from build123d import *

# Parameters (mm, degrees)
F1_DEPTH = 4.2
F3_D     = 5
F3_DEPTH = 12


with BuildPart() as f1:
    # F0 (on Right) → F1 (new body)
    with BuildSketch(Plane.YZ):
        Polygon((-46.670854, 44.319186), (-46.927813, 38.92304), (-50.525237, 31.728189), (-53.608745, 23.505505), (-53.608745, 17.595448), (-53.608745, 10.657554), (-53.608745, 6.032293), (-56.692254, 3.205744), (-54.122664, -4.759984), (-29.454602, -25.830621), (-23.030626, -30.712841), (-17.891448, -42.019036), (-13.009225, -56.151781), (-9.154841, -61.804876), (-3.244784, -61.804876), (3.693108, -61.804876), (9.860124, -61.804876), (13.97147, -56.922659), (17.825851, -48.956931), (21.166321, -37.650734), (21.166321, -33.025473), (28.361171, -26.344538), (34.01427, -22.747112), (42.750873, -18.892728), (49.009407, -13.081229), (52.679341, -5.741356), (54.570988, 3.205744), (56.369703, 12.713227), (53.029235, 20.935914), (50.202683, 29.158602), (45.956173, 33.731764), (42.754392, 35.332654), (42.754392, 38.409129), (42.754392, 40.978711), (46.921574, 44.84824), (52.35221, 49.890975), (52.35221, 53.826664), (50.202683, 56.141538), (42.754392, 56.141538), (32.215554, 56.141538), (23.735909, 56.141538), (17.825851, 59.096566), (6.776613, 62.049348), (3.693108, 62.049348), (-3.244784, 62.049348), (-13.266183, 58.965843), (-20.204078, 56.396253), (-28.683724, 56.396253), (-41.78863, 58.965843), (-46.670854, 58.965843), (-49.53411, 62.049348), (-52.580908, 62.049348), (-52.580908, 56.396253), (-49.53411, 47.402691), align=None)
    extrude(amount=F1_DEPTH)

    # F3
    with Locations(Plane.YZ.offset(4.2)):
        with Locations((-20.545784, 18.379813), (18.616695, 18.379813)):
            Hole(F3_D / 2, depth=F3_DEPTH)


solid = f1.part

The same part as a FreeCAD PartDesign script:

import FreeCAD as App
import Part
import Sketcher

doc = App.newDocument("Part")
params = doc.addObject("Spreadsheet::Sheet", "Params")
for row, (alias, value) in enumerate([
    ("pad1_length", "4.2 mm"),
    ("sketch2_diameter", "5 mm"),
    ("hole_diameter", "5 mm"),
    ("hole_depth", "12 mm"),
], start=1):
    params.set(f"A{row}", alias)
    params.set(f"B{row}", "=" + value)
    params.setAlias(f"B{row}", alias)

body = doc.addObject("PartDesign::Body", "Body")

# Sketch on YZ plane
sketch1 = doc.addObject("Sketcher::SketchObject", "Sketch")
body.addObject(sketch1)
sketch1.AttachmentSupport = (doc.YZ_Plane, [""])
sketch1.MapMode = "FlatFace"
sketch1.addGeometry([
    Part.LineSegment(App.Vector(-46.670854, 44.319186, 0), App.Vector(-46.927813, 38.92304, 0)),  # 0
    Part.LineSegment(App.Vector(-46.927813, 38.92304, 0), App.Vector(-50.525237, 31.728189, 0)),  # 1
    Part.LineSegment(App.Vector(-50.525237, 31.728189, 0), App.Vector(-53.608745, 23.505505, 0)),  # 2
    Part.LineSegment(App.Vector(-53.608745, 23.505505, 0), App.Vector(-53.608745, 6.032293, 0)),  # 3
    Part.LineSegment(App.Vector(-53.608745, 6.032293, 0), App.Vector(-56.692254, 3.205744, 0)),  # 4
    Part.LineSegment(App.Vector(-56.692254, 3.205744, 0), App.Vector(-54.122664, -4.759984, 0)),  # 5
    Part.LineSegment(App.Vector(-54.122664, -4.759984, 0), App.Vector(-29.454602, -25.830621, 0)),  # 6
    Part.LineSegment(App.Vector(-29.454602, -25.830621, 0), App.Vector(-23.030626, -30.712841, 0)),  # 7
    Part.LineSegment(App.Vector(-23.030626, -30.712841, 0), App.Vector(-17.891448, -42.019036, 0)),  # 8
    Part.LineSegment(App.Vector(-17.891448, -42.019036, 0), App.Vector(-13.009225, -56.151781, 0)),  # 9
    Part.LineSegment(App.Vector(-13.009225, -56.151781, 0), App.Vector(-9.154841, -61.804876, 0)),  # 10
    Part.LineSegment(App.Vector(-9.154841, -61.804876, 0), App.Vector(9.860124, -61.804876, 0)),  # 11
    Part.LineSegment(App.Vector(9.860124, -61.804876, 0), App.Vector(13.97147, -56.922659, 0)),  # 12
    Part.LineSegment(App.Vector(13.97147, -56.922659, 0), App.Vector(17.825851, -48.956931, 0)),  # 13
    Part.LineSegment(App.Vector(17.825851, -48.956931, 0), App.Vector(21.166321, -37.650734, 0)),  # 14
    Part.LineSegment(App.Vector(21.166321, -37.650734, 0), App.Vector(21.166321, -33.025473, 0)),  # 15
    Part.LineSegment(App.Vector(21.166321, -33.025473, 0), App.Vector(28.361171, -26.344538, 0)),  # 16
    Part.LineSegment(App.Vector(28.361171, -26.344538, 0), App.Vector(34.01427, -22.747112, 0)),  # 17
    Part.LineSegment(App.Vector(34.01427, -22.747112, 0), App.Vector(42.750873, -18.892728, 0)),  # 18
    Part.LineSegment(App.Vector(42.750873, -18.892728, 0), App.Vector(49.009407, -13.081229, 0)),  # 19
    Part.LineSegment(App.Vector(49.009407, -13.081229, 0), App.Vector(52.679341, -5.741356, 0)),  # 20
    Part.LineSegment(App.Vector(52.679341, -5.741356, 0), App.Vector(54.570988, 3.205744, 0)),  # 21
    Part.LineSegment(App.Vector(54.570988, 3.205744, 0), App.Vector(56.369703, 12.713227, 0)),  # 22
    Part.LineSegment(App.Vector(56.369703, 12.713227, 0), App.Vector(53.029235, 20.935914, 0)),  # 23
    Part.LineSegment(App.Vector(53.029235, 20.935914, 0), App.Vector(50.202683, 29.158602, 0)),  # 24
    Part.LineSegment(App.Vector(50.202683, 29.158602, 0), App.Vector(45.956173, 33.731764, 0)),  # 25
    Part.LineSegment(App.Vector(45.956173, 33.731764, 0), App.Vector(42.754392, 35.332654, 0)),  # 26
    Part.LineSegment(App.Vector(42.754392, 35.332654, 0), App.Vector(42.754392, 40.978711, 0)),  # 27
    Part.LineSegment(App.Vector(42.754392, 40.978711, 0), App.Vector(46.921574, 44.84824, 0)),  # 28
    Part.LineSegment(App.Vector(46.921574, 44.84824, 0), App.Vector(52.35221, 49.890975, 0)),  # 29
    Part.LineSegment(App.Vector(52.35221, 49.890975, 0), App.Vector(52.35221, 53.826664, 0)),  # 30
    Part.LineSegment(App.Vector(52.35221, 53.826664, 0), App.Vector(50.202683, 56.141538, 0)),  # 31
    Part.LineSegment(App.Vector(50.202683, 56.141538, 0), App.Vector(23.735909, 56.141538, 0)),  # 32
    Part.LineSegment(App.Vector(23.735909, 56.141538, 0), App.Vector(17.825851, 59.096566, 0)),  # 33
    Part.LineSegment(App.Vector(17.825851, 59.096566, 0), App.Vector(6.776613, 62.049348, 0)),  # 34
    Part.LineSegment(App.Vector(6.776613, 62.049348, 0), App.Vector(-3.244784, 62.049348, 0)),  # 35
    Part.LineSegment(App.Vector(-3.244784, 62.049348, 0), App.Vector(-13.266183, 58.965843, 0)),  # 36
    Part.LineSegment(App.Vector(-13.266183, 58.965843, 0), App.Vector(-20.204078, 56.396253, 0)),  # 37
    Part.LineSegment(App.Vector(-20.204078, 56.396253, 0), App.Vector(-28.683724, 56.396253, 0)),  # 38
    Part.LineSegment(App.Vector(-28.683724, 56.396253, 0), App.Vector(-41.78863, 58.965843, 0)),  # 39
    Part.LineSegment(App.Vector(-41.78863, 58.965843, 0), App.Vector(-46.670854, 58.965843, 0)),  # 40
    Part.LineSegment(App.Vector(-46.670854, 58.965843, 0), App.Vector(-49.53411, 62.049348, 0)),  # 41
    Part.LineSegment(App.Vector(-49.53411, 62.049348, 0), App.Vector(-52.580908, 62.049348, 0)),  # 42
    Part.LineSegment(App.Vector(-52.580908, 62.049348, 0), App.Vector(-52.580908, 56.396253, 0)),  # 43
    Part.LineSegment(App.Vector(-52.580908, 56.396253, 0), App.Vector(-49.53411, 47.402691, 0)),  # 44
    Part.LineSegment(App.Vector(-49.53411, 47.402691, 0), App.Vector(-46.670854, 44.319186, 0)),  # 45
], False)
sketch1.addConstraint([
    Sketcher.Constraint("Coincident", 0, 2, 1, 1),
    Sketcher.Constraint("Coincident", 1, 2, 2, 1),
    Sketcher.Constraint("Coincident", 2, 2, 3, 1),
    Sketcher.Constraint("Coincident", 3, 2, 4, 1),
    Sketcher.Constraint("Coincident", 4, 2, 5, 1),
    Sketcher.Constraint("Coincident", 5, 2, 6, 1),
    Sketcher.Constraint("Coincident", 6, 2, 7, 1),
    Sketcher.Constraint("Coincident", 7, 2, 8, 1),
    Sketcher.Constraint("Coincident", 8, 2, 9, 1),
    Sketcher.Constraint("Coincident", 9, 2, 10, 1),
    Sketcher.Constraint("Coincident", 10, 2, 11, 1),
    Sketcher.Constraint("Coincident", 11, 2, 12, 1),
    Sketcher.Constraint("Coincident", 12, 2, 13, 1),
    Sketcher.Constraint("Coincident", 13, 2, 14, 1),
    Sketcher.Constraint("Coincident", 14, 2, 15, 1),
    Sketcher.Constraint("Coincident", 15, 2, 16, 1),
    Sketcher.Constraint("Coincident", 16, 2, 17, 1),
    Sketcher.Constraint("Coincident", 17, 2, 18, 1),
    Sketcher.Constraint("Coincident", 18, 2, 19, 1),
    Sketcher.Constraint("Coincident", 19, 2, 20, 1),
    Sketcher.Constraint("Coincident", 20, 2, 21, 1),
    Sketcher.Constraint("Coincident", 21, 2, 22, 1),
    Sketcher.Constraint("Coincident", 22, 2, 23, 1),
    Sketcher.Constraint("Coincident", 23, 2, 24, 1),
    Sketcher.Constraint("Coincident", 24, 2, 25, 1),
    Sketcher.Constraint("Coincident", 25, 2, 26, 1),
    Sketcher.Constraint("Coincident", 26, 2, 27, 1),
    Sketcher.Constraint("Coincident", 27, 2, 28, 1),
    Sketcher.Constraint("Coincident", 28, 2, 29, 1),
    Sketcher.Constraint("Coincident", 29, 2, 30, 1),
    Sketcher.Constraint("Coincident", 30, 2, 31, 1),
    Sketcher.Constraint("Coincident", 31, 2, 32, 1),
    Sketcher.Constraint("Coincident", 32, 2, 33, 1),
    Sketcher.Constraint("Coincident", 33, 2, 34, 1),
    Sketcher.Constraint("Coincident", 34, 2, 35, 1),
    Sketcher.Constraint("Coincident", 35, 2, 36, 1),
    Sketcher.Constraint("Coincident", 36, 2, 37, 1),
    Sketcher.Constraint("Coincident", 37, 2, 38, 1),
    Sketcher.Constraint("Coincident", 38, 2, 39, 1),
    Sketcher.Constraint("Coincident", 39, 2, 40, 1),
    Sketcher.Constraint("Coincident", 40, 2, 41, 1),
    Sketcher.Constraint("Coincident", 41, 2, 42, 1),
    Sketcher.Constraint("Coincident", 42, 2, 43, 1),
    Sketcher.Constraint("Coincident", 43, 2, 44, 1),
    Sketcher.Constraint("Coincident", 44, 2, 45, 1),
    Sketcher.Constraint("Coincident", 45, 2, 0, 1),
    Sketcher.Constraint("Vertical", 3),
    Sketcher.Constraint("Horizontal", 11),
    Sketcher.Constraint("Vertical", 15),
    Sketcher.Constraint("Vertical", 27),
    Sketcher.Constraint("Vertical", 30),
    Sketcher.Constraint("Horizontal", 32),
    Sketcher.Constraint("Horizontal", 35),
    Sketcher.Constraint("Horizontal", 38),
    Sketcher.Constraint("Horizontal", 40),
    Sketcher.Constraint("Horizontal", 42),
    Sketcher.Constraint("Vertical", 43),
    Sketcher.Constraint("Parallel", 16, 19),
    Sketcher.Constraint("Parallel", 1, 20),
    Sketcher.Constraint("Perpendicular", 19, 25),
    Sketcher.Constraint("Perpendicular", 20, 26),
    Sketcher.Constraint("Perpendicular", 25, 28),
    Sketcher.Constraint("Parallel", 28, 29),
    Sketcher.Constraint("Perpendicular", 29, 31),
    Sketcher.Constraint("Parallel", 26, 33),
    Sketcher.Constraint("Parallel", 31, 41),
    Sketcher.Constraint("Parallel", 41, 45),
    Sketcher.Constraint("Horizontal", 4, 2, 21, 2),
    Sketcher.Constraint("Horizontal", 36, 2, 39, 2),
    Sketcher.Constraint("Horizontal", 35, 2, 41, 2),
    Sketcher.Constraint("Horizontal", 38, 2, 43, 2),
    Sketcher.Constraint("Vertical", 24, 2, 31, 2),
    Sketcher.Constraint("Vertical", 13, 2, 33, 2),
    Sketcher.Constraint("Vertical", 41, 2, 44, 2),
    Sketcher.Constraint("Vertical", 40, 2, 45, 2),
    Sketcher.Constraint("DistanceX", 42, 2, 42, 1, 3.046798),
    Sketcher.Constraint("Distance", 26, 3.5797),
    Sketcher.Constraint("DistanceY", 3, 2, 3, 1, 17.473212),
    Sketcher.Constraint("DistanceY", 15, 1, 15, 2, 4.625261),
    Sketcher.Constraint("DistanceY", 30, 1, 30, 2, 3.935689),
    Sketcher.Constraint("DistanceY", -1, 1, 24, 2, 29.158602),
    Sketcher.Constraint("DistanceX", 7, 2, 9, 2, 10.021401),
    Sketcher.Constraint("DistanceX", 8, 2, 13, 2, 35.717299),
    Sketcher.Constraint("DistanceX", 12, 2, 16, 2, 14.389701),
    Sketcher.Constraint("DistanceX", 16, 2, 17, 2, 5.653099),
    Sketcher.Constraint("DistanceY", 18, 2, 19, 2, 5.811499),
    Sketcher.Constraint("DistanceY", 20, 2, 21, 2, 8.9471),
    Sketcher.Constraint("DistanceX", 25, 2, 28, 2, 0.965401),
    Sketcher.Constraint("DistanceY", 25, 2, 30, 2, 20.0949),
    Sketcher.Constraint("DistanceX", 32, 2, 30, 2, 28.616301),
    Sketcher.Constraint("DistanceX", 36, 2, 35, 2, 10.021399),
    Sketcher.Constraint("Distance", 0, 5.402261),
    Sketcher.Constraint("Distance", 2, 8.781831),
    Sketcher.Constraint("Distance", 4, 4.18299),
    Sketcher.Constraint("Distance", 10, 6.842058),
    Sketcher.Constraint("Distance", 13, 8.849242),
    Sketcher.Constraint("Distance", 16, 9.818389),
    Sketcher.Constraint("Distance", 17, 6.700672),
    Sketcher.Constraint("Distance", 23, 8.87532),
    Sketcher.Constraint("Distance", 24, 8.694941),
    Sketcher.Constraint("Distance", 28, 5.686709),
    Sketcher.Constraint("Distance", 29, 7.410869),
    Sketcher.Constraint("Distance", 39, 13.354451),
    Sketcher.Constraint("Distance", 41, 4.207878),
    Sketcher.Constraint("DistanceX", 11, 1, 11, 2, 19.014965),
    Sketcher.Constraint("DistanceX", 32, 2, 32, 1, 26.466774),
    Sketcher.Constraint("DistanceX", 35, 2, 35, 1, 10.021397),
    Sketcher.Constraint("DistanceX", 38, 2, 38, 1, 8.479646),
    Sketcher.Constraint("DistanceX", 40, 2, 40, 1, 4.882224),
    Sketcher.Constraint("DistanceY", 27, 1, 27, 2, 5.646057),
    Sketcher.Constraint("DistanceY", 43, 2, 43, 1, 5.653095),
    Sketcher.Constraint("DistanceY", -1, 1, 0, 2, 38.92304),
    Sketcher.Constraint("DistanceY", -1, 1, 1, 2, 31.728189),
    Sketcher.Constraint("DistanceY", 6, 2, -1, 1, 25.830621),
    Sketcher.Constraint("DistanceY", 7, 2, -1, 1, 30.712841),
    Sketcher.Constraint("DistanceX", 8, 2, -1, 1, 17.891448),
    Sketcher.Constraint("DistanceY", 9, 2, -1, 1, 56.151781),
    Sketcher.Constraint("DistanceX", 10, 2, -1, 1, 9.154841),
    Sketcher.Constraint("DistanceX", -1, 1, 12, 2, 13.97147),
    Sketcher.Constraint("DistanceY", 12, 2, -1, 1, 56.922659),
    Sketcher.Constraint("DistanceY", 16, 2, -1, 1, 26.344538),
    Sketcher.Constraint("DistanceY", 18, 2, -1, 1, 18.892728),
    Sketcher.Constraint("DistanceX", -1, 1, 20, 2, 52.679341),
    Sketcher.Constraint("DistanceX", -1, 1, 29, 2, 52.35221),
    Sketcher.Constraint("DistanceY", -1, 1, 34, 2, 62.049348),
    Sketcher.Constraint("DistanceX", 39, 2, -1, 1, 41.78863),
    Sketcher.Constraint("DistanceY", -1, 1, 44, 2, 47.402691),
    Sketcher.Constraint("DistanceX", 2, 2, 1, 2, 3.083508),
    Sketcher.Constraint("DistanceX", 4, 2, 3, 2, 3.083509),
    Sketcher.Constraint("DistanceX", 4, 2, 5, 2, 2.56959),
    Sketcher.Constraint("DistanceY", 5, 2, 4, 2, 7.965728),
    Sketcher.Constraint("DistanceX", 5, 2, 6, 2, 24.668062),
    Sketcher.Constraint("DistanceX", 3, 2, 7, 2, 30.578119),
    Sketcher.Constraint("DistanceY", 8, 2, 5, 2, 37.259052),
    Sketcher.Constraint("DistanceX", 19, 2, 21, 2, 5.561581),
    Sketcher.Constraint("DistanceX", 18, 2, 22, 2, 13.61883),
    Sketcher.Constraint("DistanceY", 17, 2, 22, 2, 35.460339),
    Sketcher.Constraint("DistanceX", 34, 2, 27, 2, 35.977779),
])
pad1 = doc.addObject("PartDesign::Pad", "Pad")
body.addObject(pad1)
pad1.Profile = sketch1
pad1.setExpression("Length", "Params.pad1_length")

# Sketch on YZ plane
sketch2 = doc.addObject("Sketcher::SketchObject", "Sketch001")
body.addObject(sketch2)
sketch2.AttachmentSupport = (doc.YZ_Plane, [""])
sketch2.MapMode = "FlatFace"
sketch2.AttachmentOffset = App.Placement(App.Vector(0, 0, 4.2), App.Rotation())
sketch2.addGeometry([
    Part.Circle(App.Vector(-20.545784, 18.379813, 0), App.Vector(0, 0, 1), 2.5),
    Part.Circle(App.Vector(18.616695, 18.379813, 0), App.Vector(0, 0, 1), 2.5),
], False)
sketch2.addConstraint([
    Sketcher.Constraint("Equal", 0, 1),
    Sketcher.Constraint("Horizontal", 0, 3, 1, 3),
    Sketcher.Constraint("Diameter", 0, 5.0),
    Sketcher.Constraint("DistanceX", 0, 3, 1, 3, 39.162479),
    Sketcher.Constraint("DistanceX", 0, 3, -1, 1, 20.545784),
    Sketcher.Constraint("DistanceY", -1, 1, 0, 3, 18.379813),
])
sketch2.setExpression("Constraints[2]", "Params.sketch2_diameter")
doc.recompute()
hole = doc.addObject("PartDesign::Hole", "Hole")
body.addObject(hole)
hole.Profile = sketch2
hole.ThreadType = "None"
hole.setExpression("Diameter", "Params.hole_diameter")
hole.DepthType = "Dimension"
hole.setExpression("Depth", "Params.hole_depth")
hole.DrillPoint = "Flat"

doc.recompute()
